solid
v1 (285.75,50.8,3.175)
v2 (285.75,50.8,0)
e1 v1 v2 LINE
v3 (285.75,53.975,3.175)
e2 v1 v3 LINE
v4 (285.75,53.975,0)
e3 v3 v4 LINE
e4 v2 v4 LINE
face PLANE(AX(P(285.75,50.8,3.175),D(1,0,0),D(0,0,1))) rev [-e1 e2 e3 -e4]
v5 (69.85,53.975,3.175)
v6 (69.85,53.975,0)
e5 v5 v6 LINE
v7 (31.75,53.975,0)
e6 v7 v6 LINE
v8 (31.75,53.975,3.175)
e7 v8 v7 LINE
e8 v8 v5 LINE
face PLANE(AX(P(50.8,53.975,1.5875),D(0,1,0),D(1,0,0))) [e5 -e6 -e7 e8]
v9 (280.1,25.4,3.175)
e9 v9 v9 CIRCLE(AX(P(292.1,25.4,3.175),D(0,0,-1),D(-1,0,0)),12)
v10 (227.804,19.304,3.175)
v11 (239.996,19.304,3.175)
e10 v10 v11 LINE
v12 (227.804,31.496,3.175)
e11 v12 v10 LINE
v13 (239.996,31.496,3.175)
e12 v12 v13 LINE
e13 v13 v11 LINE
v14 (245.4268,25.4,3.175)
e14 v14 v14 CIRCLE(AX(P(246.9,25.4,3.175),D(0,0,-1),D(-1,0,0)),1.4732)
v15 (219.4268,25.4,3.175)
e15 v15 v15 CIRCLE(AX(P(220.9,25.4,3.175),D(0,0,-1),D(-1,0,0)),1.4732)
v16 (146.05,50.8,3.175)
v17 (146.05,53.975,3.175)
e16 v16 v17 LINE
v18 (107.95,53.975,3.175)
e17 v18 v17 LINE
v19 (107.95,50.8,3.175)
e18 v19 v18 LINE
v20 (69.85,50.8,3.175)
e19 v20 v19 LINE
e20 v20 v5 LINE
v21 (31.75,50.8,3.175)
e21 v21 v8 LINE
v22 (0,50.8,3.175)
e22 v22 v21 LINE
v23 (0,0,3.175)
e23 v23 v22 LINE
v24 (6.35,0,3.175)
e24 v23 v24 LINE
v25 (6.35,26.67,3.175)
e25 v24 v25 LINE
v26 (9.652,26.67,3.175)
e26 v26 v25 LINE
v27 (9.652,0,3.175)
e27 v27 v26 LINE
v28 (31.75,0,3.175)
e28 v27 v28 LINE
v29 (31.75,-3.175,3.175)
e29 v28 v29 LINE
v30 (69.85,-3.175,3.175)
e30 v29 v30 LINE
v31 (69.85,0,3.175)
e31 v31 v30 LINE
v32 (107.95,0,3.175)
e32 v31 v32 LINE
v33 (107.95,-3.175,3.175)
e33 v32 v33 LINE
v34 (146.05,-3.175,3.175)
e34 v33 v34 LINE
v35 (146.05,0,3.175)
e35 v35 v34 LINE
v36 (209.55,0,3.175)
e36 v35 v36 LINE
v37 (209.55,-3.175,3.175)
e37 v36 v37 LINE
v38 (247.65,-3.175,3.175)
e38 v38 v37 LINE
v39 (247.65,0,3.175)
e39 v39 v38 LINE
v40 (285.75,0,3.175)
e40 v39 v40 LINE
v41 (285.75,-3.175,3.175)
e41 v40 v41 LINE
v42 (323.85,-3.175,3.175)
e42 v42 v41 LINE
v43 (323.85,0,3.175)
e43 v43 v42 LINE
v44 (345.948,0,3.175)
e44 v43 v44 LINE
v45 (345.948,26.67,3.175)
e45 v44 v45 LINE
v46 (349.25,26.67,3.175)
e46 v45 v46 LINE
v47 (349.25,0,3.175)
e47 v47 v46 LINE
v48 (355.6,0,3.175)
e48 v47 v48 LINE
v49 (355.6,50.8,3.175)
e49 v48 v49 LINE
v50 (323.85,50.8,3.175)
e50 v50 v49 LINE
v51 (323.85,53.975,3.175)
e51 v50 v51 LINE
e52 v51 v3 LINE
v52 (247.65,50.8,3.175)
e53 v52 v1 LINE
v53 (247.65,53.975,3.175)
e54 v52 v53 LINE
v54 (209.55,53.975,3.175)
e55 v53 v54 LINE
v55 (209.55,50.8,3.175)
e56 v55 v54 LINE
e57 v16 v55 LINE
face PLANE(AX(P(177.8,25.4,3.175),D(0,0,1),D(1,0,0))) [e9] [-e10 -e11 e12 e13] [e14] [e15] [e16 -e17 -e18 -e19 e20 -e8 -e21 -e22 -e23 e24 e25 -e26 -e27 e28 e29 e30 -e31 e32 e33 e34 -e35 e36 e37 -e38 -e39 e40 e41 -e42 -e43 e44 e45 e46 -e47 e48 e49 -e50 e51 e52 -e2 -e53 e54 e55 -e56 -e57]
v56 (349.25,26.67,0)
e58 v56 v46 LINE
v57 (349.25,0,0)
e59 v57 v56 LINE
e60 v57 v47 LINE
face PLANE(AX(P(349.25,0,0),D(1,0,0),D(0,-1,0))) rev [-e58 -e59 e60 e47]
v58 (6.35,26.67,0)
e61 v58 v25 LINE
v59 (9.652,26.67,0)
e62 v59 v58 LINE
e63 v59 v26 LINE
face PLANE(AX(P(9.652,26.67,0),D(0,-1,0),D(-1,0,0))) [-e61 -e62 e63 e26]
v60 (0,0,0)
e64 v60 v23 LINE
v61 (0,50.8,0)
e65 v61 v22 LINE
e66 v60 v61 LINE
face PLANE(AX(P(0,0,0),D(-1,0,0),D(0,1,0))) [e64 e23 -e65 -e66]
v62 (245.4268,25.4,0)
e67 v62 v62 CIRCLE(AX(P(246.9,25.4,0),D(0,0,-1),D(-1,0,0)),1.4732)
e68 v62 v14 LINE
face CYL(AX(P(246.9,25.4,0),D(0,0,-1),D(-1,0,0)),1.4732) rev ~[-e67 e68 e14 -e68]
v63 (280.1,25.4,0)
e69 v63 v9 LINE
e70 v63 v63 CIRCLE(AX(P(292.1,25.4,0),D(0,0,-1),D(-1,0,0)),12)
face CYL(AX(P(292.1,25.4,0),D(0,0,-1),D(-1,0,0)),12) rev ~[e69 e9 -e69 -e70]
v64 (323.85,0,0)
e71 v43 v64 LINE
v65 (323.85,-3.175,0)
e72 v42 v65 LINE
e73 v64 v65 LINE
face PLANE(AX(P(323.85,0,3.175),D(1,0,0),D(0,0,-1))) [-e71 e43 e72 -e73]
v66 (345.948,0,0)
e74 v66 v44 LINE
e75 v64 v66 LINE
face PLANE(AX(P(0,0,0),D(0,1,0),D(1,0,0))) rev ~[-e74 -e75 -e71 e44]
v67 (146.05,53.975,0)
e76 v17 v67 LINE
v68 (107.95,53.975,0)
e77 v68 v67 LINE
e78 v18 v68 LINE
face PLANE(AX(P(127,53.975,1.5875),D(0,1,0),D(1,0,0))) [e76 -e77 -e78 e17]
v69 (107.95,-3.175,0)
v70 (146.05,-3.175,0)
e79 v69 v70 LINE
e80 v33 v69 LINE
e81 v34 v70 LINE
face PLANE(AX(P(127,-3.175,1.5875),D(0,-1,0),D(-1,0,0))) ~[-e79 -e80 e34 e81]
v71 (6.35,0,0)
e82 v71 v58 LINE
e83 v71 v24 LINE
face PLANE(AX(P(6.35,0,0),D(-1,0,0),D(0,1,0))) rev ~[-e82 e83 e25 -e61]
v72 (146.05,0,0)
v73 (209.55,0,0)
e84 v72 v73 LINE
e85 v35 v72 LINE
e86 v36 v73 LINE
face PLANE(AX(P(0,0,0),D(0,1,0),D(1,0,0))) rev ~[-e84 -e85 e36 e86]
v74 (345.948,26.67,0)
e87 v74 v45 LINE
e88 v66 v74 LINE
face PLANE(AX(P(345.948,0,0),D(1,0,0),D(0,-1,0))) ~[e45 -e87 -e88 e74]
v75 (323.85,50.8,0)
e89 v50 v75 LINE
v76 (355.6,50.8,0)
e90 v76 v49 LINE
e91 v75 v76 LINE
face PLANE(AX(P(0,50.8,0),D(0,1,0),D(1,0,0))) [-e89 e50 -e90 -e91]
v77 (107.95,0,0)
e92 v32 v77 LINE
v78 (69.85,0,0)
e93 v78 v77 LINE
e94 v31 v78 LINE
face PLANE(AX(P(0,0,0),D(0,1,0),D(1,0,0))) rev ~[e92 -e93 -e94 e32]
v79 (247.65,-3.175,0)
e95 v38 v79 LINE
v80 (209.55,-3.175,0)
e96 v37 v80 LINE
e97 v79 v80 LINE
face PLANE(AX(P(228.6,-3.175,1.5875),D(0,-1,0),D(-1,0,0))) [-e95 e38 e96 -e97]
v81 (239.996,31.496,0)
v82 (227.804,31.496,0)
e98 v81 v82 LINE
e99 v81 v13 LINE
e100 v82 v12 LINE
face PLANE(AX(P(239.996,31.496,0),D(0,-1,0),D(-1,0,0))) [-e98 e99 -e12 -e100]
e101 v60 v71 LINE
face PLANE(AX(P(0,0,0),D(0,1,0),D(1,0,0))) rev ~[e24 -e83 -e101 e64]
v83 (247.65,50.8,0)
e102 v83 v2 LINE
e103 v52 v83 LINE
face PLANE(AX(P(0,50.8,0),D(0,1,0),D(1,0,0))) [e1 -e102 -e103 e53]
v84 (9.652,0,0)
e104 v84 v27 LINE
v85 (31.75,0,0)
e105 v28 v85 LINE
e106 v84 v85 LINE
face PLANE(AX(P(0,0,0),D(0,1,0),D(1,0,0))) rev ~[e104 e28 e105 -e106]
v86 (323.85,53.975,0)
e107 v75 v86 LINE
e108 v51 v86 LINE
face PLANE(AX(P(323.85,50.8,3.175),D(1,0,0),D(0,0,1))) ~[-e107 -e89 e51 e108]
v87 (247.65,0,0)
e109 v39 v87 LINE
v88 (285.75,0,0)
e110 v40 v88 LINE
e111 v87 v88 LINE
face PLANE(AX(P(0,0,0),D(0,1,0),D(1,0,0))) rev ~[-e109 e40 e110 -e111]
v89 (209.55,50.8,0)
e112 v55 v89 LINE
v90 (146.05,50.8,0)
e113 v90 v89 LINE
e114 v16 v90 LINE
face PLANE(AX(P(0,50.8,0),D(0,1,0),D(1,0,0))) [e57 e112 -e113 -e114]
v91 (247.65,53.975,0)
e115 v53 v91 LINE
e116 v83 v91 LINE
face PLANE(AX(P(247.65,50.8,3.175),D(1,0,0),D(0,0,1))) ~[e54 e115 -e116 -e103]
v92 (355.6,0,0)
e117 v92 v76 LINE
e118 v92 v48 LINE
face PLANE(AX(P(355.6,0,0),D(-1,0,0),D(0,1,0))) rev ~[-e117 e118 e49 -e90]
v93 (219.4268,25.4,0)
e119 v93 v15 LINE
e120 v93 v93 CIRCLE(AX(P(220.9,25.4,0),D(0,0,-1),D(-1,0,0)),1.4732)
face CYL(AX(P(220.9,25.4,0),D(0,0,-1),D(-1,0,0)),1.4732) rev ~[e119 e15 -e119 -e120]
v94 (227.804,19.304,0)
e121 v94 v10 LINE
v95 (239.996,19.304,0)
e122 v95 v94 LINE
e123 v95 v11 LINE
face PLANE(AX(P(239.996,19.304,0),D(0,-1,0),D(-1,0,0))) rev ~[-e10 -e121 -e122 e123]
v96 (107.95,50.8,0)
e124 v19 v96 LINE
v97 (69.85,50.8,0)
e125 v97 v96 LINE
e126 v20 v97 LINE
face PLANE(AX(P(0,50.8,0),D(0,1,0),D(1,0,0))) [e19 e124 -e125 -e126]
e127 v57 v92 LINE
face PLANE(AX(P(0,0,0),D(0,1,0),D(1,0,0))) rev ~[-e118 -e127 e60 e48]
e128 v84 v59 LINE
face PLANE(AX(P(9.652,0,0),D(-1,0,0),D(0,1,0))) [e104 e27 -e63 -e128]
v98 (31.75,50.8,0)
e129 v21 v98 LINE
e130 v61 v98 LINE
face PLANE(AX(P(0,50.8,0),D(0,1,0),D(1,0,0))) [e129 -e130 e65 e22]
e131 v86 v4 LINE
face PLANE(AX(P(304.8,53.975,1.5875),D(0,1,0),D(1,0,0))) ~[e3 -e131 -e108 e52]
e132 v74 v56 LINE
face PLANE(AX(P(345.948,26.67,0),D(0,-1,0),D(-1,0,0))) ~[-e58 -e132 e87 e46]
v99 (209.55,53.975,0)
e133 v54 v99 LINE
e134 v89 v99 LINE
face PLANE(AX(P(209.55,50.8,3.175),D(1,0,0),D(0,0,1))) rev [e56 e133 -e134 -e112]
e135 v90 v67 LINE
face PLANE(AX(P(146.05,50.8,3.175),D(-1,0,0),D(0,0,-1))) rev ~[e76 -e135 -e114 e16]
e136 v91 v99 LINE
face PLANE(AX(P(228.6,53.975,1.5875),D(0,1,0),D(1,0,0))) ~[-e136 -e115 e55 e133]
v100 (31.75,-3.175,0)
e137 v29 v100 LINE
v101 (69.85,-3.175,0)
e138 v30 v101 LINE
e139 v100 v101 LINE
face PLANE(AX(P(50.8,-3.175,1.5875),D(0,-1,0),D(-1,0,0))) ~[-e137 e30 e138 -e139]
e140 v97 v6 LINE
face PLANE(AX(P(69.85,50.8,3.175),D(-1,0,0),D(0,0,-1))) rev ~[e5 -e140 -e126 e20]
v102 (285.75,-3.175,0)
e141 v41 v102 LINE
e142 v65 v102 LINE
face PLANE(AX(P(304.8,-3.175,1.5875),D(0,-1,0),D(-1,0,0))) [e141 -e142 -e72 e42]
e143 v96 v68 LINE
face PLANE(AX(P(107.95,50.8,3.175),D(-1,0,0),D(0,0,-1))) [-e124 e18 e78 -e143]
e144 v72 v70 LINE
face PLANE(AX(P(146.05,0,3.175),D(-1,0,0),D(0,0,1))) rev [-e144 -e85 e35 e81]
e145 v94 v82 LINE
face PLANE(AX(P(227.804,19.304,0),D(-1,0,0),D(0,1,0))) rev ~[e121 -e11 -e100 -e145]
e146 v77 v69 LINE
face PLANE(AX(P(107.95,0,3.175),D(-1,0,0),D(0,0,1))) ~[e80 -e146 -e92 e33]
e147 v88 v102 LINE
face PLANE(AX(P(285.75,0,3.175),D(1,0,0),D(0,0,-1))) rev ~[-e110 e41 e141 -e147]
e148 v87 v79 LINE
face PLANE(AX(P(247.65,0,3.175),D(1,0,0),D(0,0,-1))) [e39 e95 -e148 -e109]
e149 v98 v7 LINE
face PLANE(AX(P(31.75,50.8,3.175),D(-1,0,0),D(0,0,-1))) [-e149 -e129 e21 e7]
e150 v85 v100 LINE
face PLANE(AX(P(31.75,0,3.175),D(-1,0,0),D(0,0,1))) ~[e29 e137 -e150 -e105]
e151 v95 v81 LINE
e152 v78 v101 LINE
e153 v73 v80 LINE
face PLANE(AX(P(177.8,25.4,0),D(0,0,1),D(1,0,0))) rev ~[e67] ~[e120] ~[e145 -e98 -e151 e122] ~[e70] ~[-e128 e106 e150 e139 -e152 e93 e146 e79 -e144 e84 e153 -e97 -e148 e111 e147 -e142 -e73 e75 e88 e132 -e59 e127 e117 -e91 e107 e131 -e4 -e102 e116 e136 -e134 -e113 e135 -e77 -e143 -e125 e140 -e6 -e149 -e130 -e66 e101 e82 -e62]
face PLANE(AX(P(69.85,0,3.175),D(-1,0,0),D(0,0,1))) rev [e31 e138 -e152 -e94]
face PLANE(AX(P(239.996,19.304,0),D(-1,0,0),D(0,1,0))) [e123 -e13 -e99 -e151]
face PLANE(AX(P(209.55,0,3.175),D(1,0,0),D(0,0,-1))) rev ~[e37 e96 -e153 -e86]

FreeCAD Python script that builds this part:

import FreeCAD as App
import Part
import Sketcher
from FreeCAD import Vector
Q = App.Units.Quantity

doc = App.newDocument("Part")
body = doc.addObject("PartDesign::Body", "Body")

sketch1 = body.newObject("Sketcher::SketchObject", "Sketch")
sketch1.AttachmentSupport = (doc.getObject("XY_Plane"), [""])
sketch1.MapMode = "FlatFace"
sketch1.addGeometry([
    Part.LineSegment(Vector(0, 50.8, 0), Vector(0, 0, 0)),
    Part.LineSegment(Vector(0, 0, 0), Vector(355.6, 0, 0)),
    Part.LineSegment(Vector(355.6, 0, 0), Vector(355.6, 50.8, 0)),
    Part.LineSegment(Vector(355.6, 50.8, 0), Vector(0, 50.8, 0)),
], False)
sketch1.addConstraint([
    Sketcher.Constraint("Coincident", 0, 2, 1, 1),
    Sketcher.Constraint("Coincident", 1, 2, 2, 1),
    Sketcher.Constraint("Coincident", 2, 2, 3, 1),
    Sketcher.Constraint("Coincident", 3, 2, 0, 1),
    Sketcher.Constraint("Vertical", 0),
    Sketcher.Constraint("Horizontal", 1),
    Sketcher.Constraint("Vertical", 2),
    Sketcher.Constraint("Horizontal", 3),
    Sketcher.Constraint("Coincident", 0, 2, -1, 1),
    Sketcher.Constraint("DistanceX", 1, 1, 1, 2, Q("14 in")),
    Sketcher.Constraint("DistanceY", 0, 2, 0, 1, Q("2 in")),
])
pad1 = body.newObject("PartDesign::Pad", "Pad")
pad1.Profile = sketch1
pad1.Length = Q("0.125 in")

sketch2 = body.newObject("Sketcher::SketchObject", "Sketch001")
sketch2.AttachmentSupport = (doc.getObject("XZ_Plane"), [""])
sketch2.MapMode = "FlatFace"
sketch2.AttachmentOffset = App.Placement(Vector(0, 0, -2 * 25.4), App.Rotation())
sketch2.addGeometry([
    Part.LineSegment(Vector(31.75, 0, 0), Vector(31.75, 3.175, 0)),
    Part.LineSegment(Vector(31.75, 3.175, 0), Vector(69.85, 3.175, 0)),
    Part.LineSegment(Vector(69.85, 3.175, 0), Vector(69.85, 0, 0)),
    Part.LineSegment(Vector(69.85, 0, 0), Vector(31.75, 0, 0)),
    Part.LineSegment(Vector(107.95, 0, 0), Vector(107.95, 3.175, 0)),
    Part.LineSegment(Vector(107.95, 3.175, 0), Vector(146.05, 3.175, 0)),
    Part.LineSegment(Vector(146.05, 3.175, 0), Vector(146.05, 0, 0)),
    Part.LineSegment(Vector(146.05, 0, 0), Vector(107.95, 0, 0)),
], False)
sketch2.addConstraint([
    Sketcher.Constraint("Coincident", 0, 2, 1, 1),
    Sketcher.Constraint("Coincident", 1, 2, 2, 1),
    Sketcher.Constraint("Coincident", 2, 2, 3, 1),
    Sketcher.Constraint("Coincident", 3, 2, 0, 1),
    Sketcher.Constraint("Coincident", 4, 2, 5, 1),
    Sketcher.Constraint("Coincident", 5, 2, 6, 1),
    Sketcher.Constraint("Coincident", 6, 2, 7, 1),
    Sketcher.Constraint("Coincident", 7, 2, 4, 1),
    Sketcher.Constraint("Vertical", 0),
    Sketcher.Constraint("Horizontal", 1),
    Sketcher.Constraint("Vertical", 2),
    Sketcher.Constraint("Horizontal", 3),
    Sketcher.Constraint("Vertical", 4),
    Sketcher.Constraint("Horizontal", 5),
    Sketcher.Constraint("Vertical", 6),
    Sketcher.Constraint("Horizontal", 7),
    Sketcher.Constraint("PointOnObject", 2, 2, -1),
    Sketcher.Constraint("PointOnObject", 6, 2, -1),
    Sketcher.Constraint("Horizontal", 1, 2, 4, 2),
    Sketcher.Constraint("Equal", 3, 5),
    Sketcher.Constraint("DistanceX", 1, 1, 1, 2, Q("1.5 in")),
    Sketcher.Constraint("DistanceX", 0, 2, 4, 2, Q("3 in")),
    Sketcher.Constraint("DistanceY", 0, 1, 0, 2, Q("0.125 in")),
    Sketcher.Constraint("DistanceX", -1, 1, 0, 2, Q("1.25 in")),
])
pad2 = body.newObject("PartDesign::Pad", "Pad001")
pad2.Profile = sketch2
pad2.Length = Q("0.125 in")
pad2.Reversed = True
doc.recompute()

datumplane = body.newObject("PartDesign::Plane", "DatumPlane")
datumplane.AttachmentSupport = (doc.getObject("YZ_Plane"), [""])
datumplane.MapMode = "FlatFace"
datumplane.AttachmentOffset = App.Placement(Vector(0, 0, 7 * 25.4), App.Rotation())
mirrored = body.newObject("PartDesign::Mirrored", "Mirrored")
mirrored.Originals = [pad2]
mirrored.MirrorPlane = (datumplane, [""])
body.Tip = mirrored
doc.recompute()

datumplane2 = body.newObject("PartDesign::Plane", "DatumPlane001")
datumplane2.AttachmentSupport = (doc.getObject("XZ_Plane"), [""])
datumplane2.MapMode = "FlatFace"
datumplane2.AttachmentOffset = App.Placement(Vector(0, 0, -1 * 25.4), App.Rotation())
mirrored2 = body.newObject("PartDesign::Mirrored", "Mirrored001")
mirrored2.Originals = [pad2]
mirrored2.MirrorPlane = (datumplane2, [""])
body.Tip = mirrored2

sketch3 = body.newObject("Sketcher::SketchObject", "Sketch002")
sketch3.AttachmentSupport = (doc.getObject("XZ_Plane"), [""])
sketch3.MapMode = "FlatFace"
sketch3.addGeometry([
    Part.LineSegment(Vector(323.85, 0, 0), Vector(323.85, 3.175, 0)),
    Part.LineSegment(Vector(323.85, 3.175, 0), Vector(285.75, 3.175, 0)),
    Part.LineSegment(Vector(285.75, 3.175, 0), Vector(285.75, 0, 0)),
    Part.LineSegment(Vector(285.75, 0, 0), Vector(323.85, 0, 0)),
    Part.LineSegment(Vector(247.65, 0, 0), Vector(247.65, 3.175, 0)),
    Part.LineSegment(Vector(247.65, 3.175, 0), Vector(209.55, 3.175, 0)),
    Part.LineSegment(Vector(209.55, 3.175, 0), Vector(209.55, 0, 0)),
    Part.LineSegment(Vector(209.55, 0, 0), Vector(247.65, 0, 0)),
], False)
sketch3.addConstraint([
    Sketcher.Constraint("Coincident", 0, 2, 1, 1),
    Sketcher.Constraint("Coincident", 1, 2, 2, 1),
    Sketcher.Constraint("Coincident", 2, 2, 3, 1),
    Sketcher.Constraint("Coincident", 3, 2, 0, 1),
    Sketcher.Constraint("Coincident", 4, 2, 5, 1),
    Sketcher.Constraint("Coincident", 5, 2, 6, 1),
    Sketcher.Constraint("Coincident", 6, 2, 7, 1),
    Sketcher.Constraint("Coincident", 7, 2, 4, 1),
    Sketcher.Constraint("Vertical", 0),
    Sketcher.Constraint("Horizontal", 1),
    Sketcher.Constraint("Vertical", 2),
    Sketcher.Constraint("Horizontal", 3),
    Sketcher.Constraint("Vertical", 4),
    Sketcher.Constraint("Horizontal", 5),
    Sketcher.Constraint("Vertical", 6),
    Sketcher.Constraint("Horizontal", 7),
    Sketcher.Constraint("PointOnObject", 2, 2, -1),
    Sketcher.Constraint("PointOnObject", 6, 2, -1),
    Sketcher.Constraint("Horizontal", 1, 2, 4, 2),
    Sketcher.Constraint("Equal", 3, 5),
    Sketcher.Constraint("DistanceX", 1, 2, 1, 1, Q("1.5 in")),
    Sketcher.Constraint("DistanceX", 4, 2, 0, 2, Q("3 in")),
    Sketcher.Constraint("DistanceY", 0, 1, 0, 2, Q("0.125 in")),
    Sketcher.Constraint("DistanceX", -1, 1, 0, 2, Q("12.75 in")),
])
pad3 = body.newObject("PartDesign::Pad", "Pad002")
pad3.Profile = sketch3
pad3.Length = Q("0.125 in")

sketch4 = body.newObject("Sketcher::SketchObject", "Sketch003")
sketch4.AttachmentSupport = (doc.getObject("XY_Plane"), [""])
sketch4.MapMode = "FlatFace"
sketch4.addGeometry([
    Part.LineSegment(Vector(9.652, 26.67, 0), Vector(9.652, 0, 0)),
    Part.LineSegment(Vector(9.652, 0, 0), Vector(6.35, 0, 0)),
    Part.LineSegment(Vector(6.35, 0, 0), Vector(6.35, 26.67, 0)),
    Part.LineSegment(Vector(6.35, 26.67, 0), Vector(9.652, 26.67, 0)),
], False)
sketch4.addConstraint([
    Sketcher.Constraint("Coincident", 0, 2, 1, 1),
    Sketcher.Constraint("Coincident", 1, 2, 2, 1),
    Sketcher.Constraint("Coincident", 2, 2, 3, 1),
    Sketcher.Constraint("Coincident", 3, 2, 0, 1),
    Sketcher.Constraint("Vertical", 0),
    Sketcher.Constraint("Horizontal", 1),
    Sketcher.Constraint("Vertical", 2),
    Sketcher.Constraint("Horizontal", 3),
    Sketcher.Constraint("PointOnObject", 0, 2, -1),
    Sketcher.Constraint("DistanceX", 1, 2, 1, 1, Q("0.13 in")),
    Sketcher.Constraint("DistanceY", 0, 2, 0, 1, Q("1.05 in")),
    Sketcher.Constraint("DistanceX", -1, 1, 0, 2, Q("0.38 in")),
])
pocket1 = body.newObject("PartDesign::Pocket", "Pocket")
pocket1.Profile = sketch4
pocket1.Length = Q("0.125 in")
pocket1.Reversed = True
doc.recompute()

datumplane3 = body.newObject("PartDesign::Plane", "DatumPlane002")
datumplane3.AttachmentSupport = (doc.getObject("YZ_Plane"), [""])
datumplane3.MapMode = "FlatFace"
datumplane3.AttachmentOffset = App.Placement(Vector(0, 0, 7 * 25.4), App.Rotation())
mirrored3 = body.newObject("PartDesign::Mirrored", "Mirrored002")
mirrored3.Originals = [pocket1]
mirrored3.MirrorPlane = (datumplane3, [""])
body.Tip = mirrored3

sketch5 = body.newObject("Sketcher::SketchObject", "Sketch004")
sketch5.AttachmentSupport = (doc.getObject("XY_Plane"), [""])
sketch5.MapMode = "FlatFace"
sketch5.addGeometry([
    Part.Circle(Vector(220.9, 25.4, 0), Vector(0, 0, 1), 1.4732),
    Part.Circle(Vector(246.9, 25.4, 0), Vector(0, 0, 1), 1.4732),
    Part.Circle(Vector(292.1, 25.4, 0), Vector(0, 0, 1), 12),
    Part.LineSegment(Vector(239.996, 31.496, 0), Vector(239.996, 19.304, 0)),
    Part.LineSegment(Vector(239.996, 19.304, 0), Vector(227.804, 19.304, 0)),
    Part.LineSegment(Vector(227.804, 19.304, 0), Vector(227.804, 31.496, 0)),
    Part.LineSegment(Vector(227.804, 31.496, 0), Vector(239.996, 31.496, 0)),
], False)
sketch5.addConstraint([
    Sketcher.Constraint("Coincident", 3, 2, 4, 1),
    Sketcher.Constraint("Coincident", 4, 2, 5, 1),
    Sketcher.Constraint("Coincident", 5, 2, 6, 1),
    Sketcher.Constraint("Coincident", 6, 2, 3, 1),
    Sketcher.Constraint("Vertical", 3),
    Sketcher.Constraint("Horizontal", 4),
    Sketcher.Constraint("Vertical", 5),
    Sketcher.Constraint("Horizontal", 6),
    Sketcher.Constraint("Equal", 0, 1),
    Sketcher.Constraint("Horizontal", 0, 3, 1, 3),
    Sketcher.Constraint("Horizontal", 1, 3, 2, 3),
    Sketcher.Constraint("Equal", 6, 3),
    Sketcher.Constraint("Diameter", 0, Q("0.116 in")),
    Sketcher.Constraint("DistanceY", -1, 1, 0, 3, Q("1 in")),
    Sketcher.Constraint("DistanceX", 4, 2, 4, 1, Q("0.48 in")),
    Sketcher.Constraint("DistanceX", -1, 1, 2, 3, Q("11.5 in")),
    Sketcher.Constraint("Diameter", 2, Q("24 mm")),
    Sketcher.Constraint("DistanceY", -1, 1, 3, 2, Q("0.76 in")),
    Sketcher.Constraint("DistanceX", -1, 1, 0, 3, Q("220.9 mm")),
    Sketcher.Constraint("DistanceX", -1, 1, 1, 3, Q("246.9 mm")),
    Sketcher.Constraint("DistanceX", -1, 1, 3, 2, Q("239.996 mm")),
])
pocket2 = body.newObject("PartDesign::Pocket", "Pocket001")
pocket2.Profile = sketch5
pocket2.Type = "ThroughAll"
pocket2.Midplane = True

doc.recompute()
